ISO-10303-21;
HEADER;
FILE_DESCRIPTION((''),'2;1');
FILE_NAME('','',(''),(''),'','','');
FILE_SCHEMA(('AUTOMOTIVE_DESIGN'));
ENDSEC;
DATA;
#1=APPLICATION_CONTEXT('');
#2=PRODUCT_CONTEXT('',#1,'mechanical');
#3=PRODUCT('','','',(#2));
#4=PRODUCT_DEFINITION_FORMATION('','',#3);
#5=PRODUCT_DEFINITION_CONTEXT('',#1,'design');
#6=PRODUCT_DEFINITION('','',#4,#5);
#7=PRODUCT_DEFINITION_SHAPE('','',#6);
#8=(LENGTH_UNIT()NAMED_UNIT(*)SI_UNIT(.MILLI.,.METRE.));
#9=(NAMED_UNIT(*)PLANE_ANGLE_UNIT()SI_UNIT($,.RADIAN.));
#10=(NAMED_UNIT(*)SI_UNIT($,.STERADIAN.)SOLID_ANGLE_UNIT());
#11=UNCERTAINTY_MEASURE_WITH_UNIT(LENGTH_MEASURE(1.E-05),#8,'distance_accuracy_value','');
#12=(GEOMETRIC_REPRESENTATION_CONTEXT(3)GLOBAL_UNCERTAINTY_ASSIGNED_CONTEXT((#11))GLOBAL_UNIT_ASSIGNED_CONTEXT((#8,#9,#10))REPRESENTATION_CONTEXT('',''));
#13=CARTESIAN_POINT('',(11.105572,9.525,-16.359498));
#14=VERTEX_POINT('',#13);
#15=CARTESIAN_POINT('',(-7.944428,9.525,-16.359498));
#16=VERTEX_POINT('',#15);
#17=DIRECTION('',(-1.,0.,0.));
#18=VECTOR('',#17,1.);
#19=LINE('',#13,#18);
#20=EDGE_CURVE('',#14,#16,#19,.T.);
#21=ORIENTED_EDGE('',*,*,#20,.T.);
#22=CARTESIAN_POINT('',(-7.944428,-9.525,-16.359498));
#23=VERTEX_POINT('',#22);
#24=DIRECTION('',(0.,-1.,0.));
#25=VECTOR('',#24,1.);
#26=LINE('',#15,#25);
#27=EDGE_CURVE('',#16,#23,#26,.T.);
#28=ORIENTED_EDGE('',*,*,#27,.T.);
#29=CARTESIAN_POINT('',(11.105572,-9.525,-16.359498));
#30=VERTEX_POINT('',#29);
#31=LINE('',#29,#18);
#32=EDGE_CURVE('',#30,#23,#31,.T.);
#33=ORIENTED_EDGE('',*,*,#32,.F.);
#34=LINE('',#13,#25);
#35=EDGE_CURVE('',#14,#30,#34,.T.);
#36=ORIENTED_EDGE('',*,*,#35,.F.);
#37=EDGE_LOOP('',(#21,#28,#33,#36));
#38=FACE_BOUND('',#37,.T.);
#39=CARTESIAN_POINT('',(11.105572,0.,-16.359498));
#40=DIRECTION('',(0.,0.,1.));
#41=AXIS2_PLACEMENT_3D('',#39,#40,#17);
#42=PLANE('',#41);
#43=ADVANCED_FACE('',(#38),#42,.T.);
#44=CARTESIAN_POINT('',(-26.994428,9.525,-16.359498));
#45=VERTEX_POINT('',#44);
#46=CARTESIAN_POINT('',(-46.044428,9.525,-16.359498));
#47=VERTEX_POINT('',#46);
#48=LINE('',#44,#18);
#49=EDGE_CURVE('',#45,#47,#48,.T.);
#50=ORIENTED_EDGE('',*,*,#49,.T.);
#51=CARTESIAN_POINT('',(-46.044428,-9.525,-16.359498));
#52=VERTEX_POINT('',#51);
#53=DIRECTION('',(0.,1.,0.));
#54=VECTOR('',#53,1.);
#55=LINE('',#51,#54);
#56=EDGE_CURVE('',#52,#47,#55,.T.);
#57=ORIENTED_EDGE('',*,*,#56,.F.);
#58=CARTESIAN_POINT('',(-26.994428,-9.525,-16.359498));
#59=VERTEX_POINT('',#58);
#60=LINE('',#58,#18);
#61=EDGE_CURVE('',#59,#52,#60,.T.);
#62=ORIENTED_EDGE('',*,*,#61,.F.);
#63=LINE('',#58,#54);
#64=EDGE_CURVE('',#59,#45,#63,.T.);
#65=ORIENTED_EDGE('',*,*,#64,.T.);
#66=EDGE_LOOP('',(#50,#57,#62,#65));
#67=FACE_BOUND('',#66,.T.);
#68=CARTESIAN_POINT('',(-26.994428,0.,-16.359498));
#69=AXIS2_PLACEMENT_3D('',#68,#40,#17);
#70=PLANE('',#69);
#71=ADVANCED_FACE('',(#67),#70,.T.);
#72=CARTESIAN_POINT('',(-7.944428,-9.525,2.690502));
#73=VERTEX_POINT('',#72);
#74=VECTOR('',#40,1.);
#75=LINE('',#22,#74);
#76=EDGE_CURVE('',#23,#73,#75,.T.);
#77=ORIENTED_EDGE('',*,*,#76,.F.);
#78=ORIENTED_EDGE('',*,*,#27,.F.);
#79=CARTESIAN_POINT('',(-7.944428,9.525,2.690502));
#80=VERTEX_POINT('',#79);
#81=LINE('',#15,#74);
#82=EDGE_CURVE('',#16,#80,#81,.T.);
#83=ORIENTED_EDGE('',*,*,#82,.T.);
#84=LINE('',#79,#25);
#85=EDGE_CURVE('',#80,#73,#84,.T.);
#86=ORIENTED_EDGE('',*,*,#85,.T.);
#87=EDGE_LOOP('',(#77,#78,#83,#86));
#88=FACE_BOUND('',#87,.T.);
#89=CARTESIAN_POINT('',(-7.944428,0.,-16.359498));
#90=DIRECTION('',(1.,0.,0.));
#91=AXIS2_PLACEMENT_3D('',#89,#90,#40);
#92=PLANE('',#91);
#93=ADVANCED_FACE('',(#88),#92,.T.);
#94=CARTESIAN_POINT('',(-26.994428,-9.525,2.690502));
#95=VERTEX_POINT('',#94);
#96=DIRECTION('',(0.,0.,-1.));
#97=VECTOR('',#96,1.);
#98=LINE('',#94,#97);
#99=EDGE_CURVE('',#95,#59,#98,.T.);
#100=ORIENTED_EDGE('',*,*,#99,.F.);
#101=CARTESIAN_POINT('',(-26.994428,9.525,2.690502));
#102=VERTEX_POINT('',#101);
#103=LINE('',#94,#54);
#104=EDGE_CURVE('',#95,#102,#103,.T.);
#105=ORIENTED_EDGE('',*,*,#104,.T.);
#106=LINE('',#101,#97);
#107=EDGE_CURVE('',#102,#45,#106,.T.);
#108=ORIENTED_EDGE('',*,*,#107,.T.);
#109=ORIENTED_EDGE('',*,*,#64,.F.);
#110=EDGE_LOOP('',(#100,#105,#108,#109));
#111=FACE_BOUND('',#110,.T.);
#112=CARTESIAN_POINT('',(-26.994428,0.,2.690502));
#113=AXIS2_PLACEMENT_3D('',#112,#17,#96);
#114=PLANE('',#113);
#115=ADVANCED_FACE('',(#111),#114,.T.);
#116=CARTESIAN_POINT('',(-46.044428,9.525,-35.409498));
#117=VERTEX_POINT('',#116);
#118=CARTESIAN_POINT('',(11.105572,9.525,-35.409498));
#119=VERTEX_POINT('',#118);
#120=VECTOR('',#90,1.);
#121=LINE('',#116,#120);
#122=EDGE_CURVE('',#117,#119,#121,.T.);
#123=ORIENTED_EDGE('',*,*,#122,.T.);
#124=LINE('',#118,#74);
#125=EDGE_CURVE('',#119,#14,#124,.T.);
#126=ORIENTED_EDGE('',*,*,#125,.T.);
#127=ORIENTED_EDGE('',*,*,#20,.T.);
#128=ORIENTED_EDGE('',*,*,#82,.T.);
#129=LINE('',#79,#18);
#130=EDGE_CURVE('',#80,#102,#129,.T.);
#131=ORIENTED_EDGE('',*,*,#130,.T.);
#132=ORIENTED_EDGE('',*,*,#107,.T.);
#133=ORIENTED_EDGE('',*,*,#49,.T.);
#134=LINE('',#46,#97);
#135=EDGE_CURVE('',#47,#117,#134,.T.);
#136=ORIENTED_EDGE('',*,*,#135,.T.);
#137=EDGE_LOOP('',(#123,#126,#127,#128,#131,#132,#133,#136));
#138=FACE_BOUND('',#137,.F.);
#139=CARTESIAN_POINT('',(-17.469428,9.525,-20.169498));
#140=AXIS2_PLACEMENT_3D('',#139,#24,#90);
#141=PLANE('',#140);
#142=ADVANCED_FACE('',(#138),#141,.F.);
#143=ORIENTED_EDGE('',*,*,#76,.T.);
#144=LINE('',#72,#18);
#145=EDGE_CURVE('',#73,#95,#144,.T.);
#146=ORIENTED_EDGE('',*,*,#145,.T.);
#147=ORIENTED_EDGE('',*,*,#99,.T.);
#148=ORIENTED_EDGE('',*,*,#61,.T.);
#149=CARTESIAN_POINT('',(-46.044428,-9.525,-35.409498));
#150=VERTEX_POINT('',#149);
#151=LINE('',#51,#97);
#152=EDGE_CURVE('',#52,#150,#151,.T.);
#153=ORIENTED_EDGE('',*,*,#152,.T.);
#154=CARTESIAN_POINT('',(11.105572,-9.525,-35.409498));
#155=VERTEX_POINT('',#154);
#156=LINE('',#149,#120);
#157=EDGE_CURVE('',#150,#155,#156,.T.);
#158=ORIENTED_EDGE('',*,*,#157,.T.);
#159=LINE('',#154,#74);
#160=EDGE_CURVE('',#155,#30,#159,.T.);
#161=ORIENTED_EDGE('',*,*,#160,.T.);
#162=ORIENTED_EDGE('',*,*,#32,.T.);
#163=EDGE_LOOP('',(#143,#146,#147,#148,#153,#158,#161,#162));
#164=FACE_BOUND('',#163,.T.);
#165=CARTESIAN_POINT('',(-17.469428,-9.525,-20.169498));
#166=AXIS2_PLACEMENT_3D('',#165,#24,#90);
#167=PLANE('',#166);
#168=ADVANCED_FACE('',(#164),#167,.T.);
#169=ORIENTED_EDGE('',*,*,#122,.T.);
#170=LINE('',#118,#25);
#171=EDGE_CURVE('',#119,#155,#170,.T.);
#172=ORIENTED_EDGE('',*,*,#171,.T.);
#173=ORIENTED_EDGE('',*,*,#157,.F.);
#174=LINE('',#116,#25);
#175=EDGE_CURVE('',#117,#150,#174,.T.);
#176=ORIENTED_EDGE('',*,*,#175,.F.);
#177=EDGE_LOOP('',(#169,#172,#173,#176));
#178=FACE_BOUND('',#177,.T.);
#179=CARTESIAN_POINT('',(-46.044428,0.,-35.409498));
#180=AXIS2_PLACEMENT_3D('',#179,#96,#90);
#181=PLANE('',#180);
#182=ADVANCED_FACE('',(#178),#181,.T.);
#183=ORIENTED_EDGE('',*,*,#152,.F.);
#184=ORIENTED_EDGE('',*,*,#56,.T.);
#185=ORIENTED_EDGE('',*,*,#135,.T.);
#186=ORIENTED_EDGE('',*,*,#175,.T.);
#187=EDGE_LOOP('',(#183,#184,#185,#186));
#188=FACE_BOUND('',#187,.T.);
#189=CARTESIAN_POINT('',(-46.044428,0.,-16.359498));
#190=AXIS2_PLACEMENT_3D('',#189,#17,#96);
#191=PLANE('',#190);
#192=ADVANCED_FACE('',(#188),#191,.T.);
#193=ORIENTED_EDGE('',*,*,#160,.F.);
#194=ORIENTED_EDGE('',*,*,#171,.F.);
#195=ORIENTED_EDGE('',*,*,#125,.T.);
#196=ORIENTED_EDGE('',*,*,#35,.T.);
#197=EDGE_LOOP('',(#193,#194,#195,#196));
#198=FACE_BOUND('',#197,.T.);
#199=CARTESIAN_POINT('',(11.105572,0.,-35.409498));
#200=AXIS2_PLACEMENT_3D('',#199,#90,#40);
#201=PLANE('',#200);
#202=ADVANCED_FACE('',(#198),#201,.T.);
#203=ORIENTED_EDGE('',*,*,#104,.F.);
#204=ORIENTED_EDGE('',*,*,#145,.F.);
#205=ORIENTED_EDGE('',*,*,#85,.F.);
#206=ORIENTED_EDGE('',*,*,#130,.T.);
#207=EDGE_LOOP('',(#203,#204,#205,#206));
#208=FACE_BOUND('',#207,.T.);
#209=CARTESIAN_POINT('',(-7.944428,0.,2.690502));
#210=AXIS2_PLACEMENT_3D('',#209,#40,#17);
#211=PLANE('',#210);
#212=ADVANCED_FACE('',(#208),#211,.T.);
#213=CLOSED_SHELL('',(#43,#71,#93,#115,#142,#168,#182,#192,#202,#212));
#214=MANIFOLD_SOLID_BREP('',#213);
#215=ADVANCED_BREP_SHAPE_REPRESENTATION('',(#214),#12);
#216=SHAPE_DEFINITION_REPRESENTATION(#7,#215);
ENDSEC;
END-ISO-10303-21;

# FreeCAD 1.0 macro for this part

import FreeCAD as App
import Part
import Sketcher
Q = App.Units.Quantity

doc = App.newDocument("Part")
body = doc.addObject("PartDesign::Body", "Body")

# Sketch on XZ plane
sketch1 = doc.addObject("Sketcher::SketchObject", "Sketch")
body.addObject(sketch1)
sketch1.AttachmentSupport = (doc.XZ_Plane, [""])
sketch1.MapMode = "FlatFace"
sketch1.addGeometry([
    Part.LineSegment(App.Vector(-46.044428, -16.359498, 0), App.Vector(-46.044428, -35.409498, 0)),  # 0
    Part.LineSegment(App.Vector(-46.044428, -35.409498, 0), App.Vector(11.105572, -35.409498, 0)),  # 1
    Part.LineSegment(App.Vector(11.105572, -35.409498, 0), App.Vector(11.105572, -16.359498, 0)),  # 2
    Part.LineSegment(App.Vector(11.105572, -16.359498, 0), App.Vector(-7.944428, -16.359498, 0)),  # 3
    Part.LineSegment(App.Vector(-7.944428, -16.359498, 0), App.Vector(-7.944428, 2.690502, 0)),  # 4
    Part.LineSegment(App.Vector(-7.944428, 2.690502, 0), App.Vector(-26.994428, 2.690502, 0)),  # 5
    Part.LineSegment(App.Vector(-26.994428, 2.690502, 0), App.Vector(-26.994428, -16.359498, 0)),  # 6
    Part.LineSegment(App.Vector(-26.994428, -16.359498, 0), App.Vector(-46.044428, -16.359498, 0)),  # 7
], False)
sketch1.addConstraint([
    Sketcher.Constraint("Coincident", 0, 2, 1, 1),
    Sketcher.Constraint("Coincident", 1, 2, 2, 1),
    Sketcher.Constraint("Coincident", 2, 2, 3, 1),
    Sketcher.Constraint("Coincident", 3, 2, 4, 1),
    Sketcher.Constraint("Coincident", 4, 2, 5, 1),
    Sketcher.Constraint("Coincident", 5, 2, 6, 1),
    Sketcher.Constraint("Coincident", 6, 2, 7, 1),
    Sketcher.Constraint("Coincident", 7, 2, 0, 1),
    Sketcher.Constraint("Vertical", 0),
    Sketcher.Constraint("Horizontal", 1),
    Sketcher.Constraint("Vertical", 2),
    Sketcher.Constraint("Horizontal", 3),
    Sketcher.Constraint("Vertical", 4),
    Sketcher.Constraint("Horizontal", 5),
    Sketcher.Constraint("Vertical", 6),
    Sketcher.Constraint("Horizontal", 7),
    Sketcher.Constraint("Horizontal", 3, 2, 6, 2),
    Sketcher.Constraint("Equal", 3, 5),
    Sketcher.Constraint("Equal", 5, 7),
    Sketcher.Constraint("Equal", 7, 0),
    Sketcher.Constraint("Equal", 2, 4),
    Sketcher.Constraint("DistanceX", 1, 1, 1, 2, Q("2.25 in")),
    Sketcher.Constraint("DistanceY", -1, 1, 4, 2, Q("2.690502 mm")),
    Sketcher.Constraint("DistanceX", 0, 2, -1, 1, Q("46.044428 mm")),
])
pad1 = doc.addObject("PartDesign::Pad", "Pad")
body.addObject(pad1)
pad1.Profile = sketch1
pad1.Length = Q("0.75 in")
pad1.Midplane = True

# Sketch on XZ plane
sketch2 = doc.addObject("Sketcher::SketchObject", "Sketch001")
body.addObject(sketch2)
sketch2.AttachmentSupport = (doc.XZ_Plane, [""])
sketch2.MapMode = "FlatFace"
sketch2.addGeometry([
    Part.LineSegment(App.Vector(-46.044428, -16.359498, 0), App.Vector(-46.044428, -35.409498, 0)),  # 0
    Part.LineSegment(App.Vector(-46.044428, -35.409498, 0), App.Vector(11.105572, -35.409498, 0)),  # 1
    Part.LineSegment(App.Vector(11.105572, -35.409498, 0), App.Vector(11.105572, -16.359498, 0)),  # 2
    Part.LineSegment(App.Vector(11.105572, -16.359498, 0), App.Vector(-7.944428, -16.359498, 0)),  # 3
    Part.LineSegment(App.Vector(-7.944428, -16.359498, 0), App.Vector(-7.944428, 2.690502, 0)),  # 4
    Part.LineSegment(App.Vector(-7.944428, 2.690502, 0), App.Vector(-26.994428, 2.690502, 0)),  # 5
    Part.LineSegment(App.Vector(-26.994428, 2.690502, 0), App.Vector(-26.994428, -16.359498, 0)),  # 6
    Part.LineSegment(App.Vector(-26.994428, -16.359498, 0), App.Vector(-46.044428, -16.359498, 0)),  # 7
], False)
sketch2.addConstraint([
    Sketcher.Constraint("Coincident", 0, 2, 1, 1),
    Sketcher.Constraint("Coincident", 1, 2, 2, 1),
    Sketcher.Constraint("Coincident", 2, 2, 3, 1),
    Sketcher.Constraint("Coincident", 3, 2, 4, 1),
    Sketcher.Constraint("Coincident", 4, 2, 5, 1),
    Sketcher.Constraint("Coincident", 5, 2, 6, 1),
    Sketcher.Constraint("Coincident", 6, 2, 7, 1),
    Sketcher.Constraint("Coincident", 7, 2, 0, 1),
    Sketcher.Constraint("Vertical", 0),
    Sketcher.Constraint("Horizontal", 1),
    Sketcher.Constraint("Vertical", 2),
    Sketcher.Constraint("Horizontal", 3),
    Sketcher.Constraint("Vertical", 4),
    Sketcher.Constraint("Horizontal", 5),
    Sketcher.Constraint("Vertical", 6),
    Sketcher.Constraint("Horizontal", 7),
    Sketcher.Constraint("Horizontal", 3, 2, 6, 2),
    Sketcher.Constraint("Equal", 3, 5),
    Sketcher.Constraint("Equal", 5, 7),
    Sketcher.Constraint("Equal", 7, 0),
    Sketcher.Constraint("Equal", 2, 4),
    Sketcher.Constraint("DistanceX", 1, 1, 1, 2, Q("2.25 in")),
    Sketcher.Constraint("DistanceY", -1, 1, 4, 2, Q("2.690502 mm")),
    Sketcher.Constraint("DistanceX", 0, 2, -1, 1, Q("46.044428 mm")),
])
pad2 = doc.addObject("PartDesign::Pad", "Pad001")
body.addObject(pad2)
pad2.Profile = sketch2
pad2.Length = Q("0.75 in")
pad2.Midplane = True

doc.recompute()
